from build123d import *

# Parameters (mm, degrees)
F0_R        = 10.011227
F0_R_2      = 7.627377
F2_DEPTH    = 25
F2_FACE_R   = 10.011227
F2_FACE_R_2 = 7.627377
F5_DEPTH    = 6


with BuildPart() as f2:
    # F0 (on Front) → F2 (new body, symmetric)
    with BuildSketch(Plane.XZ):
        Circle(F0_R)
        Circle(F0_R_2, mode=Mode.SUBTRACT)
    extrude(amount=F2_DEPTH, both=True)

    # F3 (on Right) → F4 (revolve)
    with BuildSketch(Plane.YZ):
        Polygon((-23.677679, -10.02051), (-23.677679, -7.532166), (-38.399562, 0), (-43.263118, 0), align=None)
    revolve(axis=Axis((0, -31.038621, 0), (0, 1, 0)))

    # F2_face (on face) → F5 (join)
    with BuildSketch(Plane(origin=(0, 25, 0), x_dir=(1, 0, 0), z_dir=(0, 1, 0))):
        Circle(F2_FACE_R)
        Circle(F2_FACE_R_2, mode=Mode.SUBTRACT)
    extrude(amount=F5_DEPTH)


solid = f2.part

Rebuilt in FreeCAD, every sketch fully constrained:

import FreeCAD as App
import Part
import Sketcher

V = App.Vector


def add_polygon(sketch, points):
    """Adds a closed chain of lines whose ends are joined by coincident constraints."""
    first, n = sketch.GeometryCount, len(points)
    for a, b in zip(points, points[1:] + points[:1]):
        sketch.addGeometry(Part.LineSegment(App.Vector(*a, 0), App.Vector(*b, 0)), False)
    for i in range(n):
        sketch.addConstraint(Sketcher.Constraint("Coincident", first + i, 2, first + (i + 1) % n, 1))

doc = App.newDocument("Part")
body = doc.addObject("PartDesign::Body", "Body")

# Sketch on XZ plane
sketch1 = body.newObject("Sketcher::SketchObject", "Sketch")
sketch1.AttachmentSupport = (doc.getObject("XZ_Plane"), [""])
sketch1.MapMode = "FlatFace"
sketch1.addGeometry([
    Part.Circle(V(0, 0, 0), V(0, 0, 1), 10.011227),
    Part.Circle(V(0, 0, 0), V(0, 0, 1), 7.627377),
], False)
sketch1.addConstraint([
    Sketcher.Constraint("Coincident", 0, 3, -1, 1),
    Sketcher.Constraint("Coincident", 1, 3, -1, 1),
    Sketcher.Constraint("Diameter", 0, 20.022454),
    Sketcher.Constraint("Diameter", 1, 15.254754),
])
pad1 = body.newObject("PartDesign::Pad", "Pad")
pad1.Profile = sketch1
pad1.Length = 50
pad1.Midplane = True

# Sketch on YZ plane
sketch2 = body.newObject("Sketcher::SketchObject", "Sketch001")
sketch2.AttachmentSupport = (doc.getObject("YZ_Plane"), [""])
sketch2.MapMode = "FlatFace"
add_polygon(sketch2, [(-23.677679, -10.02051), (-23.677679, -7.532166), (-38.399562, 0), (-43.263118, 0)])  # lines 0-3
sketch2.addConstraint([
    Sketcher.Constraint("Vertical", 0),
    Sketcher.Constraint("Horizontal", 2),
    Sketcher.Constraint("PointOnObject", 1, 2, -1),
    Sketcher.Constraint("Parallel", 1, 3),
    Sketcher.Constraint("Distance", 3, 22.000001),
    Sketcher.Constraint("Distance", 1, 16.536849),
    Sketcher.Constraint("DistanceX", 2, 2, 2, 1, 4.863556),
    Sketcher.Constraint("DistanceX", 0, 2, -1, 1, 23.677679),
])
revolution = body.newObject("PartDesign::Revolution", "Revolution")
revolution.Profile = sketch2
revolution.ReferenceAxis = (sketch2, ["H_Axis"])
revolution.Angle = 360

# Sketch on XZ plane
sketch3 = body.newObject("Sketcher::SketchObject", "Sketch002")
sketch3.AttachmentSupport = (doc.getObject("XZ_Plane"), [""])
sketch3.MapMode = "FlatFace"
sketch3.AttachmentOffset = App.Placement(V(0, 0, -25), App.Rotation())
sketch3.addGeometry([
    Part.Circle(V(0, 0, 0), V(0, 0, 1), 10.011227),
    Part.Circle(V(0, 0, 0), V(0, 0, 1), 7.627377),
], False)
sketch3.addConstraint([
    Sketcher.Constraint("Coincident", 0, 3, -1, 1),
    Sketcher.Constraint("Coincident", 1, 3, -1, 1),
    Sketcher.Constraint("Diameter", 0, 20.022454),
    Sketcher.Constraint("Diameter", 1, 15.254754),
])
pad2 = body.newObject("PartDesign::Pad", "Pad001")
pad2.Profile = sketch3
pad2.Length = 6
pad2.Reversed = True

doc.recompute()
